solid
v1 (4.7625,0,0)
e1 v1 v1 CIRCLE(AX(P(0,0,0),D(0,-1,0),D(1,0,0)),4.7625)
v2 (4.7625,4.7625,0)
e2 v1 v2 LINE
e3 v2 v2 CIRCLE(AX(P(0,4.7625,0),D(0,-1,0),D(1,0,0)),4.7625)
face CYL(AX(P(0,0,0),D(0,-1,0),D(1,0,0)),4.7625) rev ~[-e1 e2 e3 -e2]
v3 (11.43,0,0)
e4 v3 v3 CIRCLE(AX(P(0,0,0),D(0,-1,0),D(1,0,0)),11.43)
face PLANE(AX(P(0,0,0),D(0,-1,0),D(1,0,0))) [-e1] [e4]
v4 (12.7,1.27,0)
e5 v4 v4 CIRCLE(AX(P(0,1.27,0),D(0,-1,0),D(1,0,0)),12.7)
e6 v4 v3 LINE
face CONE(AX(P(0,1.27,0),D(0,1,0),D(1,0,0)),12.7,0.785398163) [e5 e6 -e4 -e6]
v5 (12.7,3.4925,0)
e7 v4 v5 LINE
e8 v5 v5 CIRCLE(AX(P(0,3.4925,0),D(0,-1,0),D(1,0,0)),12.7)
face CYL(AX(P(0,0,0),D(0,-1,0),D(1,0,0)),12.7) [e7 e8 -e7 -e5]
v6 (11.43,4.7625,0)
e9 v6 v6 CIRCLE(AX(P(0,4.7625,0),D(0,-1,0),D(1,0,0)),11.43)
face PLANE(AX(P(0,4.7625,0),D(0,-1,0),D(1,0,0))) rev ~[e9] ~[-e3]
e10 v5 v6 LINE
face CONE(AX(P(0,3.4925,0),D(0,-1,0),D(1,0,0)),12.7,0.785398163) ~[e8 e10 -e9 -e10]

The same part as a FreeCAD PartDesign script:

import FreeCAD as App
import Part
import Sketcher

V = App.Vector
Q = App.Units.Quantity


def edges_at(feature, points):
    """Names of the edges that pass closest to the given points."""
    edges = feature.Shape.Edges
    near = lambda p: min(range(len(edges)), key=lambda i: edges[i].distToShape(Part.Vertex(*p))[0])
    return sorted({f"Edge{near(p) + 1}" for p in points})

doc = App.newDocument("Part")
body = doc.addObject("PartDesign::Body", "Body")

# Sketch on XZ plane
sketch1 = doc.addObject("Sketcher::SketchObject", "Sketch")
body.addObject(sketch1)
sketch1.AttachmentSupport = (doc.XZ_Plane, [""])
sketch1.MapMode = "FlatFace"
sketch1.addGeometry([
    Part.Circle(V(0, 0, 0), V(0, 0, 1), 12.7),
    Part.Circle(V(0, 0, 0), V(0, 0, 1), 4.8),
], False)
sketch1.addConstraint([
    Sketcher.Constraint("Coincident", 0, 3, -1, 1),
    Sketcher.Constraint("Coincident", 1, 3, -1, 1),
    Sketcher.Constraint("Diameter", 0, Q("1 in")),
    Sketcher.Constraint("Diameter", 1, Q("0.375 in")),
])
pad1 = doc.addObject("PartDesign::Pad", "Pad")
body.addObject(pad1)
pad1.Profile = sketch1
pad1.Length = Q("0.1875 in")
pad1.Reversed = True
doc.recompute()

chamfer = doc.addObject("PartDesign::Chamfer", "Chamfer")
body.addObject(chamfer)
chamfer.Base = (pad1, edges_at(pad1, [(-12.7, 0, 0), (-12.7, 4.763, 0)]))
chamfer.Size = Q("0.05 in")

doc.recompute()
